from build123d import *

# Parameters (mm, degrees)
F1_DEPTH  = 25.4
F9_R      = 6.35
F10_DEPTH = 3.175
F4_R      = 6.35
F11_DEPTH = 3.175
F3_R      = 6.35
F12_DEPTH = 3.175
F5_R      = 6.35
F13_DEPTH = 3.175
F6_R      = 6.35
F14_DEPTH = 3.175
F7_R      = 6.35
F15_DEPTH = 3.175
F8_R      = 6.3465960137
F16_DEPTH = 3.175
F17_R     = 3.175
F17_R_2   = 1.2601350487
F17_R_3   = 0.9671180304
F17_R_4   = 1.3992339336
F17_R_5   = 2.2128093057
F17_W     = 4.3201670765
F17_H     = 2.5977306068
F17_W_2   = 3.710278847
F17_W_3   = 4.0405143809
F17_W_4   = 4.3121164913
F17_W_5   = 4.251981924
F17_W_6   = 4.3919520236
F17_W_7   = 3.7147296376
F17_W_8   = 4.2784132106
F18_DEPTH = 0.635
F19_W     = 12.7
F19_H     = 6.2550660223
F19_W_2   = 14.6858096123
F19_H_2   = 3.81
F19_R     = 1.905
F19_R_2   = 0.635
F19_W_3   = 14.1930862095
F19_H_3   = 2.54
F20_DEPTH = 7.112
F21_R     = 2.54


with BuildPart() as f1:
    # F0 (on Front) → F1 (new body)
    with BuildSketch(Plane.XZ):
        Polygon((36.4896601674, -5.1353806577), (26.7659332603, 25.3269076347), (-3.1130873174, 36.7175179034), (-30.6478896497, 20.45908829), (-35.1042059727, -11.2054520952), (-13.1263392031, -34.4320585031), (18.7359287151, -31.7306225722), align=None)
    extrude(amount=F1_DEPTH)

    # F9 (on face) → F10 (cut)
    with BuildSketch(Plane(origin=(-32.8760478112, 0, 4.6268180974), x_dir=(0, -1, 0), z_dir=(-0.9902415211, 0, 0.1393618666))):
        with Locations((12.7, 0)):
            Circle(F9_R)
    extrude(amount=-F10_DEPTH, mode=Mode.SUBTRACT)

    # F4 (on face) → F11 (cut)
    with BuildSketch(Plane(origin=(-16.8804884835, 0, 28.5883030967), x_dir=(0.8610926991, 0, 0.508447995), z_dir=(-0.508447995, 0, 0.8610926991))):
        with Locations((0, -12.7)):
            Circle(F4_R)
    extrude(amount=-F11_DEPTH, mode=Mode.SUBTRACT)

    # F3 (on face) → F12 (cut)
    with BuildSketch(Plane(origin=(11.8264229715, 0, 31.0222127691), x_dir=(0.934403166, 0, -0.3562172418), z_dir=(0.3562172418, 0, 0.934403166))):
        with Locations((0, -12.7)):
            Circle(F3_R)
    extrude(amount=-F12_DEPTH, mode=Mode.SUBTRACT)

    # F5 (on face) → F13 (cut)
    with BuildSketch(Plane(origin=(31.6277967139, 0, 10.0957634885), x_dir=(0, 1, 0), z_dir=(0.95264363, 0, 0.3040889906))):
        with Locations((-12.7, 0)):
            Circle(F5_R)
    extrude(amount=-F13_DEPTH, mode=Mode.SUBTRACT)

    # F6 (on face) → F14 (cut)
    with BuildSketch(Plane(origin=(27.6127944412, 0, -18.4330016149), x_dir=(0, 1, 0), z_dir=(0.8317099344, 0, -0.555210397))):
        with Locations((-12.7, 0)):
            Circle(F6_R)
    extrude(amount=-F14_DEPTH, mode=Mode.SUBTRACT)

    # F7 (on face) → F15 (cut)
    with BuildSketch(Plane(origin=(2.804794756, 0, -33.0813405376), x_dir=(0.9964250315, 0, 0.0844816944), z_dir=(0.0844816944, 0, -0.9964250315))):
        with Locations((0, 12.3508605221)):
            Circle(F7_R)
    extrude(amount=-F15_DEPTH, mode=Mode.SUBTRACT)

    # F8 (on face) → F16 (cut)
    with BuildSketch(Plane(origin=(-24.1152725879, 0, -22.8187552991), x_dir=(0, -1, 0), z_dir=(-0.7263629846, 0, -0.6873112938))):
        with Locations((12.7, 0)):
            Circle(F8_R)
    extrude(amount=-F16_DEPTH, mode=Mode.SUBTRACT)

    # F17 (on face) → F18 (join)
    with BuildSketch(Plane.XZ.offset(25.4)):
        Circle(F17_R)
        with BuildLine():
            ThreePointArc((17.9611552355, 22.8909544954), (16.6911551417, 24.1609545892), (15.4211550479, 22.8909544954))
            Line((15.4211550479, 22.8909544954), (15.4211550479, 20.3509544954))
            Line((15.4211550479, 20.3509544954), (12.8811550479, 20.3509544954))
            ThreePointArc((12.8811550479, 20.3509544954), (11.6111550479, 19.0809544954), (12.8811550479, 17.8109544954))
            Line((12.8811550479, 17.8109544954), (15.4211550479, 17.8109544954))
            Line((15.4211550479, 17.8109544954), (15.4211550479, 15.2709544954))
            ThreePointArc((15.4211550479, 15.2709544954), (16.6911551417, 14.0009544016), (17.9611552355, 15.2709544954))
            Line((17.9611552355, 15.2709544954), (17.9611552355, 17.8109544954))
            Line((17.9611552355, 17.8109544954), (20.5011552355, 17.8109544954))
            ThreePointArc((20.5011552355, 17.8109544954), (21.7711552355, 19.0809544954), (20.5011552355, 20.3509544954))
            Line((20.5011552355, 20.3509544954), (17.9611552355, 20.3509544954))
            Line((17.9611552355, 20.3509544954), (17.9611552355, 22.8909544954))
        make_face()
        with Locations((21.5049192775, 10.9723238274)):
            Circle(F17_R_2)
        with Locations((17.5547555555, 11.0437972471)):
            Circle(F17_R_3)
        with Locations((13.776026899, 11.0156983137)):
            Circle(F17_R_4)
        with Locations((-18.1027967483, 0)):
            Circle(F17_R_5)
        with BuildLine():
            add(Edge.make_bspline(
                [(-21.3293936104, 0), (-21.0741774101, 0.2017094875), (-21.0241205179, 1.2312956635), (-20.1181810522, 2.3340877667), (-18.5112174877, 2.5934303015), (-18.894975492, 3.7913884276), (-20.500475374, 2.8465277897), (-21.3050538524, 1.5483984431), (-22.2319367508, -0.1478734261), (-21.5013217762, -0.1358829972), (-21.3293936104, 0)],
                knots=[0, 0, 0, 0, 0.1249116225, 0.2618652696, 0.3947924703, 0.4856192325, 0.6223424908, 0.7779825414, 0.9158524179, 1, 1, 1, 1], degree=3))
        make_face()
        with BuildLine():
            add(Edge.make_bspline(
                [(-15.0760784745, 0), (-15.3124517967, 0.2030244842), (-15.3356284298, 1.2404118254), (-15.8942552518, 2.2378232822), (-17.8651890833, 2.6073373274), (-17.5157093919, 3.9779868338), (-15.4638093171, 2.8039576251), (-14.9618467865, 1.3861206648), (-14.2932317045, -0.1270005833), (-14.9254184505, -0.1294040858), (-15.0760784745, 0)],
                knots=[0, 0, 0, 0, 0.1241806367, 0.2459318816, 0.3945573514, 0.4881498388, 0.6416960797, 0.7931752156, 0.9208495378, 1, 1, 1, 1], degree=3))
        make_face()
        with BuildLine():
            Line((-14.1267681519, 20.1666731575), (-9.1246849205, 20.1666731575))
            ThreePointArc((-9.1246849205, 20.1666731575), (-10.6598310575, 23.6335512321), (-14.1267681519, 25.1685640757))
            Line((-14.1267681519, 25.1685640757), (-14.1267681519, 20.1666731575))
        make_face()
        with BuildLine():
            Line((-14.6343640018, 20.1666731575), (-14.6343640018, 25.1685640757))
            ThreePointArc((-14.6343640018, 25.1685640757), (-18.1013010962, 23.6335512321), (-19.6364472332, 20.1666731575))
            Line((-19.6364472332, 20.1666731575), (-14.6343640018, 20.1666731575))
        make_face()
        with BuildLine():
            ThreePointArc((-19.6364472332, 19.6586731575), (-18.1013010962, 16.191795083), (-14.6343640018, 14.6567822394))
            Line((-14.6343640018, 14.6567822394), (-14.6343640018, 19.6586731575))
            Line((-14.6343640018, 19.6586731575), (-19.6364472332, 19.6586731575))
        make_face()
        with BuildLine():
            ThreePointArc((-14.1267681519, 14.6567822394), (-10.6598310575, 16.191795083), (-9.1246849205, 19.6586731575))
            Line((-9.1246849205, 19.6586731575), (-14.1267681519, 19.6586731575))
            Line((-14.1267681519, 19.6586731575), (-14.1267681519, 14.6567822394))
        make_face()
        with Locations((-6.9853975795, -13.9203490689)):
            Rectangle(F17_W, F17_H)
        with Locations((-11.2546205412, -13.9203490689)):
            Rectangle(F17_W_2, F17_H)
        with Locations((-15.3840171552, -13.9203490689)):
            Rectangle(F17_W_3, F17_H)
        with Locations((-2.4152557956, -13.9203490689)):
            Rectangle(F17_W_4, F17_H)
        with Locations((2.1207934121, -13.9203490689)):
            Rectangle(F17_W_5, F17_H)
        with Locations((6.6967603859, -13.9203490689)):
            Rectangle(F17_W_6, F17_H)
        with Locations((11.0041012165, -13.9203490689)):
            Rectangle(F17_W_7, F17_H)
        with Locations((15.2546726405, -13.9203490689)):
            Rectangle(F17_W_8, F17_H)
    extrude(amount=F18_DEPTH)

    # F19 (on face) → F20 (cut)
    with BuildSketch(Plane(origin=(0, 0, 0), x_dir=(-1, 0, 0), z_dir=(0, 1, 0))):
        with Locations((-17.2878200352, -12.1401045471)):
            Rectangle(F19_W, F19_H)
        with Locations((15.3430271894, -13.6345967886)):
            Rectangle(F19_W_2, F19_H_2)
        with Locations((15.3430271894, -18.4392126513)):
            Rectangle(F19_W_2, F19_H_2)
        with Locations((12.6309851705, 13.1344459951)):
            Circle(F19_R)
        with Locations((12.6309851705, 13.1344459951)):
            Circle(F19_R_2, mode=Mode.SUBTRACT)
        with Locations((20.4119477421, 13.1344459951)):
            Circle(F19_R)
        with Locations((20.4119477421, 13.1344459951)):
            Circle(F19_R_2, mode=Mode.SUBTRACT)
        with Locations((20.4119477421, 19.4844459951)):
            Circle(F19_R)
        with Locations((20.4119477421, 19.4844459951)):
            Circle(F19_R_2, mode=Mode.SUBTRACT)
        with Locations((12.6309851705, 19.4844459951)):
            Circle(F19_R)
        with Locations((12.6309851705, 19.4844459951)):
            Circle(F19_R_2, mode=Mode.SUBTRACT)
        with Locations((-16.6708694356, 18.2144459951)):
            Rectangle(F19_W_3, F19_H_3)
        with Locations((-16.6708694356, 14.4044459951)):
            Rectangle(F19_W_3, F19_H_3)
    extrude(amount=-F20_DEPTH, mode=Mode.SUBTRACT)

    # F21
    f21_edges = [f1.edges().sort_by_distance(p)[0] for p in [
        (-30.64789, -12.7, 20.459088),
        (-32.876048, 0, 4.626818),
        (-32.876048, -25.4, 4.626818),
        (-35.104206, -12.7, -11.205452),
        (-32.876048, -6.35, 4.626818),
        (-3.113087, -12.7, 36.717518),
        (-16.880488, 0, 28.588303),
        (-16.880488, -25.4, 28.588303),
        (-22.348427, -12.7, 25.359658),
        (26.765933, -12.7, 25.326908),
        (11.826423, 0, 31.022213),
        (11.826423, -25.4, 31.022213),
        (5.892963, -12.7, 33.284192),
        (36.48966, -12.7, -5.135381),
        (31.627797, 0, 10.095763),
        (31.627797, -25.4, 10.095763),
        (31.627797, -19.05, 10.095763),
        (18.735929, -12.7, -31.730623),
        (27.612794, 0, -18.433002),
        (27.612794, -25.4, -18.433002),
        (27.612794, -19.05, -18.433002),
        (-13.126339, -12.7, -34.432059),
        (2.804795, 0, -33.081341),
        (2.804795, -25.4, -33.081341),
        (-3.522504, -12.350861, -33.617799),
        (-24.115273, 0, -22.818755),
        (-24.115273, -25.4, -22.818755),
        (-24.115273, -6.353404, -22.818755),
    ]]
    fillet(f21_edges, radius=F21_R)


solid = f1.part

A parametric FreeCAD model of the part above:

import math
import FreeCAD as App
import Part
import Sketcher

V = App.Vector
Q = App.Units.Quantity


def edges_at(feature, points):
    """Names of the edges that pass closest to the given points."""
    edges = feature.Shape.Edges
    near = lambda p: min(range(len(edges)), key=lambda i: edges[i].distToShape(Part.Vertex(*p))[0])
    return sorted({f"Edge{near(p) + 1}" for p in points})


def add_polygon(sketch, points):
    """Adds a closed chain of lines whose ends are joined by coincident constraints."""
    first, n = sketch.GeometryCount, len(points)
    for a, b in zip(points, points[1:] + points[:1]):
        sketch.addGeometry(Part.LineSegment(App.Vector(*a, 0), App.Vector(*b, 0)), False)
    for i in range(n):
        sketch.addConstraint(Sketcher.Constraint("Coincident", first + i, 2, first + (i + 1) % n, 1))

doc = App.newDocument("Part")
body = doc.addObject("PartDesign::Body", "Body")

# Sketch on XZ plane
sketch1 = doc.addObject("Sketcher::SketchObject", "Sketch")
body.addObject(sketch1)
sketch1.AttachmentSupport = (doc.XZ_Plane, [""])
sketch1.MapMode = "FlatFace"
add_polygon(sketch1, [(36, -5), (27, 25), (-3, 37), (-31, 20), (-35, -11), (-13, -34), (19, -32)])  # lines 0-6
sketch1.addConstraint([
    Sketcher.Constraint("Equal", 0, 1),
    Sketcher.Constraint("Equal", 1, 2),
    Sketcher.Constraint("Equal", 2, 3),
    Sketcher.Constraint("Equal", 3, 4),
    Sketcher.Constraint("Equal", 4, 5),
    Sketcher.Constraint("Equal", 5, 6),
    Sketcher.Constraint("DistanceX", 4, 2, 6, 2, 49.615999),
    Sketcher.Constraint("DistanceY", 6, 2, 1, 2, 41.852899),
    Sketcher.Constraint("DistanceX", 2, 2, -1, 1, 30.64789),
    Sketcher.Constraint("DistanceY", -1, 1, 2, 2, 20.459088),
    Sketcher.Constraint("DistanceX", 4, 2, -1, 1, 13.126339),
    Sketcher.Constraint("DistanceY", 4, 2, -1, 1, 34.432059),
    Sketcher.Constraint("DistanceX", -1, 1, 5, 2, 18.735929),
    Sketcher.Constraint("DistanceY", 6, 2, -1, 1, 5.135381),
])
pad1 = doc.addObject("PartDesign::Pad", "Pad")
body.addObject(pad1)
pad1.Profile = sketch1
pad1.Length = Q("1 in")

# Sketch on an angled plane
sketch2 = doc.addObject("Sketcher::SketchObject", "Sketch001")
body.addObject(sketch2)
sketch2.Placement = App.Placement(V(-32.876048, 0, 4.626818), App.Rotation(V(0, -1, 0), V(0.139361867, 0, 0.990241521), V(-0.990241521, 0, 0.139361867), "ZXY"))
sketch2.addGeometry(Part.Circle(V(13, 0, 0), V(0, 0, 1), 6), False)
sketch2.addConstraint([
    Sketcher.Constraint("PointOnObject", 0, 3, -1),
    Sketcher.Constraint("Diameter", 0, Q("0.5 in")),
    Sketcher.Constraint("DistanceX", -1, 1, 0, 3, Q("0.5 in")),
])
pocket1 = doc.addObject("PartDesign::Pocket", "Pocket")
body.addObject(pocket1)
pocket1.Profile = sketch2
pocket1.Length = Q("0.125 in")

# Sketch on an angled plane
sketch3 = doc.addObject("Sketcher::SketchObject", "Sketch002")
body.addObject(sketch3)
sketch3.Placement = App.Placement(V(-16.880488, 0, 28.588303), App.Rotation(V(0.861092699, 0, 0.508447995), V(0, 1, 0), V(-0.508447995, 0, 0.861092699), "ZXY"))
sketch3.addGeometry(Part.Circle(V(0, -13, 0), V(0, 0, 1), 6), False)
sketch3.addConstraint([
    Sketcher.Constraint("PointOnObject", 0, 3, -2),
    Sketcher.Constraint("Diameter", 0, Q("0.5 in")),
    Sketcher.Constraint("DistanceY", 0, 3, -1, 1, Q("0.5 in")),
])
pocket2 = doc.addObject("PartDesign::Pocket", "Pocket001")
body.addObject(pocket2)
pocket2.Profile = sketch3
pocket2.Length = Q("0.125 in")

# Sketch on an angled plane
sketch4 = doc.addObject("Sketcher::SketchObject", "Sketch003")
body.addObject(sketch4)
sketch4.Placement = App.Placement(V(11.826423, 0, 31.022213), App.Rotation(V(0.934403166, 0, -0.356217242), V(0, 1, 0), V(0.356217242, 0, 0.934403166), "ZXY"))
sketch4.addGeometry(Part.Circle(V(0, -13, 0), V(0, 0, 1), 6), False)
sketch4.addConstraint([
    Sketcher.Constraint("PointOnObject", 0, 3, -2),
    Sketcher.Constraint("Diameter", 0, Q("0.5 in")),
    Sketcher.Constraint("DistanceY", 0, 3, -1, 1, Q("0.5 in")),
])
pocket3 = doc.addObject("PartDesign::Pocket", "Pocket002")
body.addObject(pocket3)
pocket3.Profile = sketch4
pocket3.Length = Q("0.125 in")

# Sketch on an angled plane
sketch5 = doc.addObject("Sketcher::SketchObject", "Sketch004")
body.addObject(sketch5)
sketch5.Placement = App.Placement(V(31.627797, 0, 10.095763), App.Rotation(V(0, 1, 0), V(-0.304088991, 0, 0.95264363), V(0.95264363, 0, 0.304088991), "ZXY"))
sketch5.addGeometry(Part.Circle(V(-13, 0, 0), V(0, 0, 1), 6), False)
sketch5.addConstraint([
    Sketcher.Constraint("PointOnObject", 0, 3, -1),
    Sketcher.Constraint("Diameter", 0, Q("0.5 in")),
    Sketcher.Constraint("DistanceX", 0, 3, -1, 1, Q("0.5 in")),
])
pocket4 = doc.addObject("PartDesign::Pocket", "Pocket003")
body.addObject(pocket4)
pocket4.Profile = sketch5
pocket4.Length = Q("0.125 in")

# Sketch on an angled plane
sketch6 = doc.addObject("Sketcher::SketchObject", "Sketch005")
body.addObject(sketch6)
sketch6.Placement = App.Placement(V(27.612794, 0, -18.433002), App.Rotation(V(0, 1, 0), V(0.555210397, 0, 0.831709934), V(0.831709934, 0, -0.555210397), "ZXY"))
sketch6.addGeometry(Part.Circle(V(-13, 0, 0), V(0, 0, 1), 6), False)
sketch6.addConstraint([
    Sketcher.Constraint("PointOnObject", 0, 3, -1),
    Sketcher.Constraint("Diameter", 0, Q("0.5 in")),
    Sketcher.Constraint("DistanceX", 0, 3, -1, 1, Q("0.5 in")),
])
pocket5 = doc.addObject("PartDesign::Pocket", "Pocket004")
body.addObject(pocket5)
pocket5.Profile = sketch6
pocket5.Length = Q("0.125 in")

# Sketch on an angled plane
sketch7 = doc.addObject("Sketcher::SketchObject", "Sketch006")
body.addObject(sketch7)
sketch7.Placement = App.Placement(V(2.804795, 0, -33.081341), App.Rotation(V(0.996425031, 0, 0.084481694), V(0, -0.999999999, 0), V(0.084481694, 0, -0.996425031), "ZXY"))
sketch7.addGeometry(Part.Circle(V(0, 12, 0), V(0, 0, 1), 6), False)
sketch7.addConstraint([
    Sketcher.Constraint("PointOnObject", 0, 3, -2),
    Sketcher.Constraint("Diameter", 0, Q("0.5 in")),
    Sketcher.Constraint("DistanceY", -1, 1, 0, 3, 12.35086),
])
pocket6 = doc.addObject("PartDesign::Pocket", "Pocket005")
body.addObject(pocket6)
pocket6.Profile = sketch7
pocket6.Length = Q("0.125 in")

# Sketch on an angled plane
sketch8 = doc.addObject("Sketcher::SketchObject", "Sketch007")
body.addObject(sketch8)
sketch8.Placement = App.Placement(V(-24.115273, 0, -22.818755), App.Rotation(V(0, -1, 0), V(-0.687311294, 0, 0.726362985), V(-0.726362985, 0, -0.687311294), "ZXY"))
sketch8.addGeometry(Part.Circle(V(13, 0, 0), V(0, 0, 1), 6), False)
sketch8.addConstraint([
    Sketcher.Constraint("PointOnObject", 0, 3, -1),
    Sketcher.Constraint("DistanceX", -1, 1, 0, 3, Q("0.5 in")),
    Sketcher.Constraint("Diameter", 0, 12.693192),
])
pocket7 = doc.addObject("PartDesign::Pocket", "Pocket006")
body.addObject(pocket7)
pocket7.Profile = sketch8
pocket7.Length = Q("0.125 in")

# Sketch on XZ plane
sketch9 = doc.addObject("Sketcher::SketchObject", "Sketch008")
body.addObject(sketch9)
sketch9.AttachmentSupport = (doc.XZ_Plane, [""])
sketch9.MapMode = "FlatFace"
sketch9.AttachmentOffset = App.Placement(V(0, 0, 1 * 25.4), App.Rotation())
sketch9.addGeometry(Part.Circle(V(0, 0, 0), V(0, 0, 1), 3.175), False)  # 0
sketch9.addGeometry(Part.ArcOfCircle(Part.Circle(V(16.691155, 22.890954, 0), V(0, 0, 1), 1.27), math.radians(0), math.radians(180)), False)  # 1
sketch9.addGeometry(Part.LineSegment(V(15.421155, 22.890954, 0), V(15.421155, 20.350954, 0)), False)  # 2
sketch9.addGeometry(Part.LineSegment(V(15.421155, 20.350954, 0), V(12.881155, 20.350954, 0)), False)  # 3
sketch9.addGeometry(Part.ArcOfCircle(Part.Circle(V(12.881155, 19.080954, 0), V(0, 0, 1), 1.27), math.radians(90), math.radians(270)), False)  # 4
sketch9.addGeometry(Part.LineSegment(V(12.881155, 17.810954, 0), V(15.421155, 17.810954, 0)), False)  # 5
sketch9.addGeometry(Part.LineSegment(V(15.421155, 17.810954, 0), V(15.421155, 15.270954, 0)), False)  # 6
sketch9.addGeometry(Part.ArcOfCircle(Part.Circle(V(16.691155, 15.270954, 0), V(0, 0, 1), 1.27), math.radians(180), math.radians(360)), False)  # 7
sketch9.addGeometry(Part.LineSegment(V(17.961155, 15.270954, 0), V(17.961155, 17.810954, 0)), False)  # 8
sketch9.addGeometry(Part.LineSegment(V(17.961155, 17.810954, 0), V(20.501155, 17.810954, 0)), False)  # 9
sketch9.addGeometry(Part.ArcOfCircle(Part.Circle(V(20.501155, 19.080954, 0), V(0, 0, 1), 1.27), math.radians(-90), math.radians(90)), False)  # 10
sketch9.addGeometry(Part.LineSegment(V(20.501155, 20.350954, 0), V(17.961155, 20.350954, 0)), False)  # 11
sketch9.addGeometry(Part.LineSegment(V(17.961155, 20.350954, 0), V(17.961155, 22.890954, 0)), False)  # 12
sketch9.addGeometry(Part.Circle(V(21.504919, 10.972324, 0), V(0, 0, 1), 1.260135), False)  # 13
sketch9.addGeometry(Part.Circle(V(17.554756, 11.043797, 0), V(0, 0, 1), 0.967118), False)  # 14
sketch9.addGeometry(Part.Circle(V(13.776027, 11.015698, 0), V(0, 0, 1), 1.399234), False)  # 15
sketch9.addGeometry(Part.Circle(V(-18.102797, 0, 0), V(0, 0, 1), 2.212809), False)  # 16
sketch9.addGeometry(Part.BSplineCurve([V(-21.329394, 0, 0), V(-21.074177, 0.201709, 0), V(-21.024121, 1.231296, 0), V(-20.118181, 2.334088, 0), V(-18.511217, 2.59343, 0), V(-18.894975, 3.791388, 0), V(-20.500475, 2.846528, 0), V(-21.305054, 1.548398, 0), V(-22.231937, -0.147873, 0), V(-21.501322, -0.135883, 0), V(-21.329394, 0, 0)], [4, 1, 1, 1, 1, 1, 1, 1, 4], [0, 0.124911622, 0.26186527, 0.39479247, 0.485619232, 0.622342491, 0.777982541, 0.915852418, 1], False, 3, [1, 1, 1, 1, 1, 1, 1, 1, 1, 1, 1], False), False)  # 17
sketch9.addGeometry(Part.BSplineCurve([V(-15.076078, 0, 0), V(-15.312452, 0.203024, 0), V(-15.335628, 1.240412, 0), V(-15.894255, 2.237823, 0), V(-17.865189, 2.607337, 0), V(-17.515709, 3.977987, 0), V(-15.463809, 2.803958, 0), V(-14.961847, 1.386121, 0), V(-14.293232, -0.127001, 0), V(-14.925418, -0.129404, 0), V(-15.076078, 0, 0)], [4, 1, 1, 1, 1, 1, 1, 1, 4], [0, 0.124180637, 0.245931882, 0.394557351, 0.488149839, 0.64169608, 0.793175216, 0.920849538, 1], False, 3, [1, 1, 1, 1, 1, 1, 1, 1, 1, 1, 1], False), False)  # 18
sketch9.addGeometry(Part.LineSegment(V(-14.126768, 20.166673, 0), V(-9.124685, 20.166673, 0)), False)  # 19
sketch9.addGeometry(Part.ArcOfCircle(Part.Circle(V(-14.380566, 19.912673, 0), V(0, 0, 1), 5.262015), math.radians(2.76677), math.radians(87.235433)), False)  # 20
sketch9.addGeometry(Part.LineSegment(V(-14.126768, 25.168564, 0), V(-14.126768, 20.166673, 0)), False)  # 21
sketch9.addGeometry(Part.LineSegment(V(-14.634364, 20.166673, 0), V(-14.634364, 25.168564, 0)), False)  # 22
sketch9.addGeometry(Part.ArcOfCircle(Part.Circle(V(-14.380566, 19.912673, 0), V(0, 0, 1), 5.262015), math.radians(92.764567), math.radians(177.23323)), False)  # 23
sketch9.addGeometry(Part.LineSegment(V(-19.636447, 20.166673, 0), V(-14.634364, 20.166673, 0)), False)  # 24
sketch9.addGeometry(Part.ArcOfCircle(Part.Circle(V(-14.380566, 19.912673, 0), V(0, 0, 1), 5.262015), math.radians(-177.23323), math.radians(-92.764567)), False)  # 25
sketch9.addGeometry(Part.LineSegment(V(-14.634364, 14.656782, 0), V(-14.634364, 19.658673, 0)), False)  # 26
sketch9.addGeometry(Part.LineSegment(V(-14.634364, 19.658673, 0), V(-19.636447, 19.658673, 0)), False)  # 27
sketch9.addGeometry(Part.ArcOfCircle(Part.Circle(V(-14.380566, 19.912673, 0), V(0, 0, 1), 5.262015), math.radians(-87.235433), math.radians(-2.76677)), False)  # 28
sketch9.addGeometry(Part.LineSegment(V(-9.124685, 19.658673, 0), V(-14.126768, 19.658673, 0)), False)  # 29
sketch9.addGeometry(Part.LineSegment(V(-14.126768, 19.658673, 0), V(-14.126768, 14.656782, 0)), False)  # 30
add_polygon(sketch9, [(-9.145481, -12.621484), (-9.145481, -15.219214), (-4.825314, -15.219214), (-4.825314, -12.621484)])  # lines 31-34
add_polygon(sketch9, [(-13.10976, -12.621484), (-13.10976, -15.219214), (-9.399481, -15.219214), (-9.399481, -12.621484)])  # lines 35-38
add_polygon(sketch9, [(-17.404274, -12.621484), (-17.404274, -15.219214), (-13.36376, -15.219214), (-13.36376, -12.621484)])  # lines 39-42
add_polygon(sketch9, [(-4.571314, -12.621484), (-4.571314, -15.219214), (-0.259198, -15.219214), (-0.259198, -12.621484)])  # lines 43-46
add_polygon(sketch9, [(-0.005198, -12.621484), (-0.005198, -15.219214), (4.246784, -15.219214), (4.246784, -12.621484)])  # lines 47-50
add_polygon(sketch9, [(4.500784, -12.621484), (4.500784, -15.219214), (8.892736, -15.219214), (8.892736, -12.621484)])  # lines 51-54
add_polygon(sketch9, [(9.146736, -12.621484), (9.146736, -15.219214), (12.861466, -15.219214), (12.861466, -12.621484)])  # lines 55-58
add_polygon(sketch9, [(13.115466, -12.621484), (13.115466, -15.219214), (17.393879, -15.219214), (17.393879, -12.621484)])  # lines 59-62
sketch9.addConstraint([
    Sketcher.Constraint("Block", 17),
    Sketcher.Constraint("Block", 18),
    Sketcher.Constraint("Tangent", 1, 2, 2, 1),
    Sketcher.Constraint("Coincident", 2, 2, 3, 1),
    Sketcher.Constraint("Tangent", 3, 2, 4, 1),
    Sketcher.Constraint("Tangent", 4, 2, 5, 1),
    Sketcher.Constraint("Coincident", 5, 2, 6, 1),
    Sketcher.Constraint("Tangent", 6, 2, 7, 1),
    Sketcher.Constraint("Tangent", 7, 2, 8, 1),
    Sketcher.Constraint("Coincident", 8, 2, 9, 1),
    Sketcher.Constraint("Tangent", 9, 2, 10, 1),
    Sketcher.Constraint("Tangent", 10, 2, 11, 1),
    Sketcher.Constraint("Coincident", 11, 2, 12, 1),
    Sketcher.Constraint("Tangent", 12, 2, 1, 1),
    Sketcher.Constraint("Coincident", 19, 2, 20, 1),
    Sketcher.Constraint("Coincident", 20, 2, 21, 1),
    Sketcher.Constraint("Coincident", 21, 2, 19, 1),
    Sketcher.Constraint("Coincident", 22, 2, 23, 1),
    Sketcher.Constraint("Coincident", 23, 2, 24, 1),
    Sketcher.Constraint("Coincident", 24, 2, 22, 1),
    Sketcher.Constraint("Coincident", 25, 2, 26, 1),
    Sketcher.Constraint("Coincident", 26, 2, 27, 1),
    Sketcher.Constraint("Coincident", 27, 2, 25, 1),
    Sketcher.Constraint("Coincident", 28, 2, 29, 1),
    Sketcher.Constraint("Coincident", 29, 2, 30, 1),
    Sketcher.Constraint("Coincident", 30, 2, 28, 1),
    Sketcher.Constraint("Vertical", 2),
    Sketcher.Constraint("Horizontal", 3),
    Sketcher.Constraint("Horizontal", 5),
    Sketcher.Constraint("Vertical", 6),
    Sketcher.Constraint("Vertical", 8),
    Sketcher.Constraint("Horizontal", 9),
    Sketcher.Constraint("Horizontal", 11),
    Sketcher.Constraint("Vertical", 12),
    Sketcher.Constraint("Horizontal", 19),
    Sketcher.Constraint("Vertical", 21),
    Sketcher.Constraint("Vertical", 22),
    Sketcher.Constraint("Horizontal", 24),
    Sketcher.Constraint("Vertical", 26),
    Sketcher.Constraint("Horizontal", 27),
    Sketcher.Constraint("Horizontal", 29),
    Sketcher.Constraint("Vertical", 30),
    Sketcher.Constraint("Vertical", 31),
    Sketcher.Constraint("Horizontal", 32),
    Sketcher.Constraint("Vertical", 33),
    Sketcher.Constraint("Horizontal", 34),
    Sketcher.Constraint("Vertical", 35),
    Sketcher.Constraint("Horizontal", 36),
    Sketcher.Constraint("Vertical", 37),
    Sketcher.Constraint("Horizontal", 38),
    Sketcher.Constraint("Vertical", 39),
    Sketcher.Constraint("Horizontal", 40),
    Sketcher.Constraint("Vertical", 41),
    Sketcher.Constraint("Horizontal", 42),
    Sketcher.Constraint("Vertical", 43),
    Sketcher.Constraint("Horizontal", 44),
    Sketcher.Constraint("Vertical", 45),
    Sketcher.Constraint("Horizontal", 46),
    Sketcher.Constraint("Vertical", 47),
    Sketcher.Constraint("Horizontal", 48),
    Sketcher.Constraint("Vertical", 49),
    Sketcher.Constraint("Horizontal", 50),
    Sketcher.Constraint("Vertical", 51),
    Sketcher.Constraint("Horizontal", 52),
    Sketcher.Constraint("Vertical", 53),
    Sketcher.Constraint("Horizontal", 54),
    Sketcher.Constraint("Vertical", 55),
    Sketcher.Constraint("Horizontal", 56),
    Sketcher.Constraint("Vertical", 57),
    Sketcher.Constraint("Horizontal", 58),
    Sketcher.Constraint("Vertical", 59),
    Sketcher.Constraint("Horizontal", 60),
    Sketcher.Constraint("Vertical", 61),
    Sketcher.Constraint("Horizontal", 62),
    Sketcher.Constraint("Coincident", 0, 3, -1, 1),
    Sketcher.Constraint("Coincident", 23, 3, 20, 3),
    Sketcher.Constraint("Coincident", 25, 3, 20, 3),
    Sketcher.Constraint("Coincident", 28, 3, 20, 3),
    Sketcher.Constraint("Equal", 1, 4),
    Sketcher.Constraint("Equal", 4, 7),
    Sketcher.Constraint("Equal", 7, 10),
    Sketcher.Constraint("Equal", 20, 23),
    Sketcher.Constraint("Equal", 23, 25),
    Sketcher.Constraint("Equal", 25, 28),
    Sketcher.Constraint("PointOnObject", 16, 3, -1),
    Sketcher.Constraint("Horizontal", 4, 3, 10, 3),
    Sketcher.Constraint("Horizontal", 20, 2, 22, 2),
    Sketcher.Constraint("Horizontal", 21, 2, 23, 2),
    Sketcher.Constraint("Horizontal", 27, 2, 28, 2),
    Sketcher.Constraint("Horizontal", 25, 2, 30, 2),
    Sketcher.Constraint("Horizontal", 32, 2, 35, 2),
    Sketcher.Constraint("Horizontal", 34, 2, 37, 2),
    Sketcher.Constraint("Horizontal", 36, 2, 39, 2),
    Sketcher.Constraint("Horizontal", 38, 2, 41, 2),
    Sketcher.Constraint("Horizontal", 40, 2, 43, 2),
    Sketcher.Constraint("Horizontal", 42, 2, 45, 2),
    Sketcher.Constraint("Horizontal", 44, 2, 47, 2),
    Sketcher.Constraint("Horizontal", 46, 2, 49, 2),
    Sketcher.Constraint("Horizontal", 48, 2, 51, 2),
    Sketcher.Constraint("Horizontal", 50, 2, 53, 2),
    Sketcher.Constraint("Horizontal", 52, 2, 55, 2),
    Sketcher.Constraint("Horizontal", 54, 2, 57, 2),
    Sketcher.Constraint("Horizontal", 56, 2, 59, 2),
    Sketcher.Constraint("Horizontal", 58, 2, 61, 2),
    Sketcher.Constraint("Vertical", 1, 3, 7, 3),
    Sketcher.Constraint("Vertical", 24, 2, 25, 2),
    Sketcher.Constraint("Vertical", 23, 2, 27, 2),
    Sketcher.Constraint("Equal", 5, 9),
    Sketcher.Constraint("Equal", 11, 2),
    Sketcher.Constraint("Equal", 2, 6),
    Sketcher.Constraint("Diameter", 0, Q("0.25 in")),
    Sketcher.Constraint("Radius", 1, Q("0.05 in")),
    Sketcher.Constraint("DistanceX", 3, 2, 3, 1, Q("0.1 in")),
    Sketcher.Constraint("Diameter", 13, 2.52027),
    Sketcher.Constraint("Diameter", 16, 4.425619),
    Sketcher.Constraint("Diameter", 14, 1.934236),
    Sketcher.Constraint("Diameter", 15, 2.798468),
    Sketcher.Constraint("Radius", 20, 5.262015),
    Sketcher.Constraint("DistanceX", 36, 1, 36, 2, 3.710279),
    Sketcher.Constraint("DistanceX", 48, 1, 48, 2, 4.251982),
    Sketcher.Constraint("DistanceX", 56, 1, 56, 2, 3.71473),
    Sketcher.Constraint("DistanceY", 21, 2, 21, 1, 5.001891),
    Sketcher.Constraint("DistanceY", 31, 2, 31, 1, 2.597731),
    Sketcher.Constraint("DistanceY", -1, 1, 15, 3, 11.015698),
    Sketcher.Constraint("DistanceX", 19, 1, 19, 2, 5.002083),
    Sketcher.Constraint("DistanceX", 32, 1, 32, 2, 4.320167),
    Sketcher.Constraint("DistanceX", 40, 1, 40, 2, 4.040514),
    Sketcher.Constraint("DistanceX", 44, 1, 44, 2, 4.312116),
    Sketcher.Constraint("DistanceX", 52, 1, 52, 2, 4.391952),
    Sketcher.Constraint("DistanceX", 60, 1, 60, 2, 4.278413),
    Sketcher.Constraint("DistanceX", -1, 1, 13, 3, 21.504919),
    Sketcher.Constraint("DistanceX", 20, 2, -1, 1, 14.126768),
    Sketcher.Constraint("DistanceX", 31, 2, -1, 1, 9.145481),
    Sketcher.Constraint("DistanceX", 35, 2, -1, 1, 13.10976),
    Sketcher.Constraint("DistanceX", 40, 2, -1, 1, 13.36376),
    Sketcher.Constraint("DistanceX", -1, 1, 60, 2, 17.393879),
    Sketcher.Constraint("DistanceX", -1, 1, 1, 3, 16.691155),
    Sketcher.Constraint("DistanceY", -1, 1, 1, 3, 22.890954),
    Sketcher.Constraint("DistanceY", -1, 1, 13, 3, 10.972324),
    Sketcher.Constraint("DistanceX", -1, 1, 14, 3, 17.554756),
    Sketcher.Constraint("DistanceY", -1, 1, 14, 3, 11.043797),
    Sketcher.Constraint("DistanceX", -1, 1, 15, 3, 13.776027),
    Sketcher.Constraint("DistanceX", 16, 3, -1, 1, 18.102797),
    Sketcher.Constraint("DistanceY", -1, 1, 20, 3, 19.912673),
    Sketcher.Constraint("DistanceY", 31, 2, -1, 1, 15.219214),
    Sketcher.Constraint("DistanceX", 43, 2, -1, 1, 4.571314),
    Sketcher.Constraint("DistanceX", 47, 2, -1, 1, 0.005198),
    Sketcher.Constraint("DistanceX", -1, 1, 51, 2, 4.500784),
    Sketcher.Constraint("DistanceX", -1, 1, 55, 2, 9.146736),
])
pad2 = doc.addObject("PartDesign::Pad", "Pad001")
body.addObject(pad2)
pad2.Profile = sketch9
pad2.Length = Q("0.025 in")

# Sketch on XZ plane
sketch10 = doc.addObject("Sketcher::SketchObject", "Sketch009")
body.addObject(sketch10)
sketch10.AttachmentSupport = (doc.XZ_Plane, [""])
sketch10.MapMode = "FlatFace"
add_polygon(sketch10, [(23.6, -9), (23.6, -15.3), (10.9, -15.3), (10.9, -9)])  # lines 0-3
add_polygon(sketch10, [(-8, -11.7), (-8, -15.5), (-22.7, -15.5), (-22.7, -11.7)])  # lines 4-7
add_polygon(sketch10, [(-8, -16.5), (-8, -20.3), (-22.7, -20.3), (-22.7, -16.5)])  # lines 8-11
sketch10.addGeometry(Part.Circle(V(-12.6, 13.1, 0), V(0, 0, 1), 1.9), False)  # 12
sketch10.addGeometry(Part.Circle(V(-12.6, 13.1, 0), V(0, 0, 1), 0.6), False)  # 13
sketch10.addGeometry(Part.Circle(V(-20.4, 13.1, 0), V(0, 0, 1), 1.9), False)  # 14
sketch10.addGeometry(Part.Circle(V(-20.4, 13.1, 0), V(0, 0, 1), 0.6), False)  # 15
sketch10.addGeometry(Part.Circle(V(-20.4, 19.5, 0), V(0, 0, 1), 1.9), False)  # 16
sketch10.addGeometry(Part.Circle(V(-20.4, 19.5, 0), V(0, 0, 1), 0.6), False)  # 17
sketch10.addGeometry(Part.Circle(V(-12.6, 19.5, 0), V(0, 0, 1), 1.9), False)  # 18
sketch10.addGeometry(Part.Circle(V(-12.6, 19.5, 0), V(0, 0, 1), 0.6), False)  # 19
add_polygon(sketch10, [(23.8, 19.5), (23.8, 16.9), (9.6, 16.9), (9.6, 19.5)])  # lines 20-23
add_polygon(sketch10, [(23.8, 15.7), (23.8, 13.1), (9.6, 13.1), (9.6, 15.7)])  # lines 24-27
sketch10.addConstraint([
    Sketcher.Constraint("Vertical", 0),
    Sketcher.Constraint("Horizontal", 1),
    Sketcher.Constraint("Vertical", 2),
    Sketcher.Constraint("Horizontal", 3),
    Sketcher.Constraint("Vertical", 4),
    Sketcher.Constraint("Horizontal", 5),
    Sketcher.Constraint("Vertical", 6),
    Sketcher.Constraint("Horizontal", 7),
    Sketcher.Constraint("Vertical", 8),
    Sketcher.Constraint("Horizontal", 9),
    Sketcher.Constraint("Vertical", 10),
    Sketcher.Constraint("Horizontal", 11),
    Sketcher.Constraint("Vertical", 20),
    Sketcher.Constraint("Horizontal", 21),
    Sketcher.Constraint("Vertical", 22),
    Sketcher.Constraint("Horizontal", 23),
    Sketcher.Constraint("Vertical", 24),
    Sketcher.Constraint("Horizontal", 25),
    Sketcher.Constraint("Vertical", 26),
    Sketcher.Constraint("Horizontal", 27),
    Sketcher.Constraint("Coincident", 13, 3, 12, 3),
    Sketcher.Constraint("Coincident", 15, 3, 14, 3),
    Sketcher.Constraint("Coincident", 17, 3, 16, 3),
    Sketcher.Constraint("Coincident", 19, 3, 18, 3),
    Sketcher.Constraint("Equal", 12, 14),
    Sketcher.Constraint("Equal", 13, 15),
    Sketcher.Constraint("Equal", 14, 16),
    Sketcher.Constraint("Equal", 15, 17),
    Sketcher.Constraint("Equal", 16, 18),
    Sketcher.Constraint("Equal", 17, 19),
    Sketcher.Constraint("Horizontal", 13, 3, 14, 3),
    Sketcher.Constraint("Horizontal", 17, 3, 18, 3),
    Sketcher.Constraint("Horizontal", 19, 3, 22, 2),
    Sketcher.Constraint("Horizontal", 15, 3, 24, 2),
    Sketcher.Constraint("Vertical", 15, 3, 16, 3),
    Sketcher.Constraint("Vertical", 13, 3, 18, 3),
    Sketcher.Constraint("Vertical", 7, 2, 8, 2),
    Sketcher.Constraint("Vertical", 6, 2, 9, 2),
    Sketcher.Constraint("Vertical", 23, 2, 24, 2),
    Sketcher.Constraint("Vertical", 22, 2, 25, 2),
    Sketcher.Constraint("Equal", 6, 8),
    Sketcher.Constraint("Equal", 22, 24),
    Sketcher.Constraint("Diameter", 12, Q("0.15 in")),
    Sketcher.Constraint("Diameter", 13, Q("0.05 in")),
    Sketcher.Constraint("DistanceX", 1, 2, 1, 1, Q("0.5 in")),
    Sketcher.Constraint("DistanceY", 20, 2, 20, 1, Q("0.1 in")),
    Sketcher.Constraint("DistanceY", 4, 2, 4, 1, Q("0.15 in")),
    Sketcher.Constraint("DistanceY", 14, 3, 16, 3, Q("0.25 in")),
    Sketcher.Constraint("DistanceX", 5, 2, 5, 1, 14.68581),
    Sketcher.Constraint("DistanceX", 21, 2, 21, 1, 14.193086),
    Sketcher.Constraint("DistanceY", 0, 2, 0, 1, 6.255066),
    Sketcher.Constraint("DistanceX", -1, 1, 0, 2, 23.63782),
    Sketcher.Constraint("DistanceY", 2, 2, -1, 1, 9.012572),
    Sketcher.Constraint("DistanceX", 5, 2, -1, 1, 22.685932),
    Sketcher.Constraint("DistanceY", 4, 2, 1, 2, 0.271959),
    Sketcher.Constraint("DistanceX", 18, 3, 21, 2, 22.205312),
    Sketcher.Constraint("DistanceX", 12, 3, -1, 1, 12.630985),
    Sketcher.Constraint("DistanceY", -1, 1, 12, 3, 13.134446),
    Sketcher.Constraint("DistanceX", 14, 3, -1, 1, 20.411948),
    Sketcher.Constraint("DistanceY", 8, 2, -1, 1, 20.344213),
])
pocket8 = doc.addObject("PartDesign::Pocket", "Pocket007")
body.addObject(pocket8)
pocket8.Profile = sketch10
pocket8.Length = Q("0.28 in")
pocket8.Reversed = True
doc.recompute()

fillet = doc.addObject("PartDesign::Fillet", "Fillet")
body.addObject(fillet)
fillet.Base = (pocket8, edges_at(pocket8, [
    (-30.648, -12.7, 20.459),
    (-32.876, 0, 4.627),
    (-32.876, -25.4, 4.627),
    (-35.104, -12.7, -11.205),
    (-32.876, -6.35, 4.627),
    (-3.113, -12.7, 36.718),
    (-16.88, 0, 28.588),
    (-16.88, -25.4, 28.588),
    (-22.348, -12.7, 25.36),
    (26.766, -12.7, 25.327),
    (11.826, 0, 31.022),
    (11.826, -25.4, 31.022),
    (5.893, -12.7, 33.284),
    (36.49, -12.7, -5.135),
    (31.628, 0, 10.096),
    (31.628, -25.4, 10.096),
    (31.628, -19.05, 10.096),
    (18.736, -12.7, -31.731),
    (27.613, 0, -18.433),
    (27.613, -25.4, -18.433),
    (27.613, -19.05, -18.433),
    (-13.126, -12.7, -34.432),
    (2.805, 0, -33.081),
    (2.805, -25.4, -33.081),
    (-3.523, -12.351, -33.618),
    (-24.115, 0, -22.819),
    (-24.115, -25.4, -22.819),
    (-24.115, -6.353, -22.819),
]))
fillet.Radius = Q("0.1 in")

doc.recompute()
